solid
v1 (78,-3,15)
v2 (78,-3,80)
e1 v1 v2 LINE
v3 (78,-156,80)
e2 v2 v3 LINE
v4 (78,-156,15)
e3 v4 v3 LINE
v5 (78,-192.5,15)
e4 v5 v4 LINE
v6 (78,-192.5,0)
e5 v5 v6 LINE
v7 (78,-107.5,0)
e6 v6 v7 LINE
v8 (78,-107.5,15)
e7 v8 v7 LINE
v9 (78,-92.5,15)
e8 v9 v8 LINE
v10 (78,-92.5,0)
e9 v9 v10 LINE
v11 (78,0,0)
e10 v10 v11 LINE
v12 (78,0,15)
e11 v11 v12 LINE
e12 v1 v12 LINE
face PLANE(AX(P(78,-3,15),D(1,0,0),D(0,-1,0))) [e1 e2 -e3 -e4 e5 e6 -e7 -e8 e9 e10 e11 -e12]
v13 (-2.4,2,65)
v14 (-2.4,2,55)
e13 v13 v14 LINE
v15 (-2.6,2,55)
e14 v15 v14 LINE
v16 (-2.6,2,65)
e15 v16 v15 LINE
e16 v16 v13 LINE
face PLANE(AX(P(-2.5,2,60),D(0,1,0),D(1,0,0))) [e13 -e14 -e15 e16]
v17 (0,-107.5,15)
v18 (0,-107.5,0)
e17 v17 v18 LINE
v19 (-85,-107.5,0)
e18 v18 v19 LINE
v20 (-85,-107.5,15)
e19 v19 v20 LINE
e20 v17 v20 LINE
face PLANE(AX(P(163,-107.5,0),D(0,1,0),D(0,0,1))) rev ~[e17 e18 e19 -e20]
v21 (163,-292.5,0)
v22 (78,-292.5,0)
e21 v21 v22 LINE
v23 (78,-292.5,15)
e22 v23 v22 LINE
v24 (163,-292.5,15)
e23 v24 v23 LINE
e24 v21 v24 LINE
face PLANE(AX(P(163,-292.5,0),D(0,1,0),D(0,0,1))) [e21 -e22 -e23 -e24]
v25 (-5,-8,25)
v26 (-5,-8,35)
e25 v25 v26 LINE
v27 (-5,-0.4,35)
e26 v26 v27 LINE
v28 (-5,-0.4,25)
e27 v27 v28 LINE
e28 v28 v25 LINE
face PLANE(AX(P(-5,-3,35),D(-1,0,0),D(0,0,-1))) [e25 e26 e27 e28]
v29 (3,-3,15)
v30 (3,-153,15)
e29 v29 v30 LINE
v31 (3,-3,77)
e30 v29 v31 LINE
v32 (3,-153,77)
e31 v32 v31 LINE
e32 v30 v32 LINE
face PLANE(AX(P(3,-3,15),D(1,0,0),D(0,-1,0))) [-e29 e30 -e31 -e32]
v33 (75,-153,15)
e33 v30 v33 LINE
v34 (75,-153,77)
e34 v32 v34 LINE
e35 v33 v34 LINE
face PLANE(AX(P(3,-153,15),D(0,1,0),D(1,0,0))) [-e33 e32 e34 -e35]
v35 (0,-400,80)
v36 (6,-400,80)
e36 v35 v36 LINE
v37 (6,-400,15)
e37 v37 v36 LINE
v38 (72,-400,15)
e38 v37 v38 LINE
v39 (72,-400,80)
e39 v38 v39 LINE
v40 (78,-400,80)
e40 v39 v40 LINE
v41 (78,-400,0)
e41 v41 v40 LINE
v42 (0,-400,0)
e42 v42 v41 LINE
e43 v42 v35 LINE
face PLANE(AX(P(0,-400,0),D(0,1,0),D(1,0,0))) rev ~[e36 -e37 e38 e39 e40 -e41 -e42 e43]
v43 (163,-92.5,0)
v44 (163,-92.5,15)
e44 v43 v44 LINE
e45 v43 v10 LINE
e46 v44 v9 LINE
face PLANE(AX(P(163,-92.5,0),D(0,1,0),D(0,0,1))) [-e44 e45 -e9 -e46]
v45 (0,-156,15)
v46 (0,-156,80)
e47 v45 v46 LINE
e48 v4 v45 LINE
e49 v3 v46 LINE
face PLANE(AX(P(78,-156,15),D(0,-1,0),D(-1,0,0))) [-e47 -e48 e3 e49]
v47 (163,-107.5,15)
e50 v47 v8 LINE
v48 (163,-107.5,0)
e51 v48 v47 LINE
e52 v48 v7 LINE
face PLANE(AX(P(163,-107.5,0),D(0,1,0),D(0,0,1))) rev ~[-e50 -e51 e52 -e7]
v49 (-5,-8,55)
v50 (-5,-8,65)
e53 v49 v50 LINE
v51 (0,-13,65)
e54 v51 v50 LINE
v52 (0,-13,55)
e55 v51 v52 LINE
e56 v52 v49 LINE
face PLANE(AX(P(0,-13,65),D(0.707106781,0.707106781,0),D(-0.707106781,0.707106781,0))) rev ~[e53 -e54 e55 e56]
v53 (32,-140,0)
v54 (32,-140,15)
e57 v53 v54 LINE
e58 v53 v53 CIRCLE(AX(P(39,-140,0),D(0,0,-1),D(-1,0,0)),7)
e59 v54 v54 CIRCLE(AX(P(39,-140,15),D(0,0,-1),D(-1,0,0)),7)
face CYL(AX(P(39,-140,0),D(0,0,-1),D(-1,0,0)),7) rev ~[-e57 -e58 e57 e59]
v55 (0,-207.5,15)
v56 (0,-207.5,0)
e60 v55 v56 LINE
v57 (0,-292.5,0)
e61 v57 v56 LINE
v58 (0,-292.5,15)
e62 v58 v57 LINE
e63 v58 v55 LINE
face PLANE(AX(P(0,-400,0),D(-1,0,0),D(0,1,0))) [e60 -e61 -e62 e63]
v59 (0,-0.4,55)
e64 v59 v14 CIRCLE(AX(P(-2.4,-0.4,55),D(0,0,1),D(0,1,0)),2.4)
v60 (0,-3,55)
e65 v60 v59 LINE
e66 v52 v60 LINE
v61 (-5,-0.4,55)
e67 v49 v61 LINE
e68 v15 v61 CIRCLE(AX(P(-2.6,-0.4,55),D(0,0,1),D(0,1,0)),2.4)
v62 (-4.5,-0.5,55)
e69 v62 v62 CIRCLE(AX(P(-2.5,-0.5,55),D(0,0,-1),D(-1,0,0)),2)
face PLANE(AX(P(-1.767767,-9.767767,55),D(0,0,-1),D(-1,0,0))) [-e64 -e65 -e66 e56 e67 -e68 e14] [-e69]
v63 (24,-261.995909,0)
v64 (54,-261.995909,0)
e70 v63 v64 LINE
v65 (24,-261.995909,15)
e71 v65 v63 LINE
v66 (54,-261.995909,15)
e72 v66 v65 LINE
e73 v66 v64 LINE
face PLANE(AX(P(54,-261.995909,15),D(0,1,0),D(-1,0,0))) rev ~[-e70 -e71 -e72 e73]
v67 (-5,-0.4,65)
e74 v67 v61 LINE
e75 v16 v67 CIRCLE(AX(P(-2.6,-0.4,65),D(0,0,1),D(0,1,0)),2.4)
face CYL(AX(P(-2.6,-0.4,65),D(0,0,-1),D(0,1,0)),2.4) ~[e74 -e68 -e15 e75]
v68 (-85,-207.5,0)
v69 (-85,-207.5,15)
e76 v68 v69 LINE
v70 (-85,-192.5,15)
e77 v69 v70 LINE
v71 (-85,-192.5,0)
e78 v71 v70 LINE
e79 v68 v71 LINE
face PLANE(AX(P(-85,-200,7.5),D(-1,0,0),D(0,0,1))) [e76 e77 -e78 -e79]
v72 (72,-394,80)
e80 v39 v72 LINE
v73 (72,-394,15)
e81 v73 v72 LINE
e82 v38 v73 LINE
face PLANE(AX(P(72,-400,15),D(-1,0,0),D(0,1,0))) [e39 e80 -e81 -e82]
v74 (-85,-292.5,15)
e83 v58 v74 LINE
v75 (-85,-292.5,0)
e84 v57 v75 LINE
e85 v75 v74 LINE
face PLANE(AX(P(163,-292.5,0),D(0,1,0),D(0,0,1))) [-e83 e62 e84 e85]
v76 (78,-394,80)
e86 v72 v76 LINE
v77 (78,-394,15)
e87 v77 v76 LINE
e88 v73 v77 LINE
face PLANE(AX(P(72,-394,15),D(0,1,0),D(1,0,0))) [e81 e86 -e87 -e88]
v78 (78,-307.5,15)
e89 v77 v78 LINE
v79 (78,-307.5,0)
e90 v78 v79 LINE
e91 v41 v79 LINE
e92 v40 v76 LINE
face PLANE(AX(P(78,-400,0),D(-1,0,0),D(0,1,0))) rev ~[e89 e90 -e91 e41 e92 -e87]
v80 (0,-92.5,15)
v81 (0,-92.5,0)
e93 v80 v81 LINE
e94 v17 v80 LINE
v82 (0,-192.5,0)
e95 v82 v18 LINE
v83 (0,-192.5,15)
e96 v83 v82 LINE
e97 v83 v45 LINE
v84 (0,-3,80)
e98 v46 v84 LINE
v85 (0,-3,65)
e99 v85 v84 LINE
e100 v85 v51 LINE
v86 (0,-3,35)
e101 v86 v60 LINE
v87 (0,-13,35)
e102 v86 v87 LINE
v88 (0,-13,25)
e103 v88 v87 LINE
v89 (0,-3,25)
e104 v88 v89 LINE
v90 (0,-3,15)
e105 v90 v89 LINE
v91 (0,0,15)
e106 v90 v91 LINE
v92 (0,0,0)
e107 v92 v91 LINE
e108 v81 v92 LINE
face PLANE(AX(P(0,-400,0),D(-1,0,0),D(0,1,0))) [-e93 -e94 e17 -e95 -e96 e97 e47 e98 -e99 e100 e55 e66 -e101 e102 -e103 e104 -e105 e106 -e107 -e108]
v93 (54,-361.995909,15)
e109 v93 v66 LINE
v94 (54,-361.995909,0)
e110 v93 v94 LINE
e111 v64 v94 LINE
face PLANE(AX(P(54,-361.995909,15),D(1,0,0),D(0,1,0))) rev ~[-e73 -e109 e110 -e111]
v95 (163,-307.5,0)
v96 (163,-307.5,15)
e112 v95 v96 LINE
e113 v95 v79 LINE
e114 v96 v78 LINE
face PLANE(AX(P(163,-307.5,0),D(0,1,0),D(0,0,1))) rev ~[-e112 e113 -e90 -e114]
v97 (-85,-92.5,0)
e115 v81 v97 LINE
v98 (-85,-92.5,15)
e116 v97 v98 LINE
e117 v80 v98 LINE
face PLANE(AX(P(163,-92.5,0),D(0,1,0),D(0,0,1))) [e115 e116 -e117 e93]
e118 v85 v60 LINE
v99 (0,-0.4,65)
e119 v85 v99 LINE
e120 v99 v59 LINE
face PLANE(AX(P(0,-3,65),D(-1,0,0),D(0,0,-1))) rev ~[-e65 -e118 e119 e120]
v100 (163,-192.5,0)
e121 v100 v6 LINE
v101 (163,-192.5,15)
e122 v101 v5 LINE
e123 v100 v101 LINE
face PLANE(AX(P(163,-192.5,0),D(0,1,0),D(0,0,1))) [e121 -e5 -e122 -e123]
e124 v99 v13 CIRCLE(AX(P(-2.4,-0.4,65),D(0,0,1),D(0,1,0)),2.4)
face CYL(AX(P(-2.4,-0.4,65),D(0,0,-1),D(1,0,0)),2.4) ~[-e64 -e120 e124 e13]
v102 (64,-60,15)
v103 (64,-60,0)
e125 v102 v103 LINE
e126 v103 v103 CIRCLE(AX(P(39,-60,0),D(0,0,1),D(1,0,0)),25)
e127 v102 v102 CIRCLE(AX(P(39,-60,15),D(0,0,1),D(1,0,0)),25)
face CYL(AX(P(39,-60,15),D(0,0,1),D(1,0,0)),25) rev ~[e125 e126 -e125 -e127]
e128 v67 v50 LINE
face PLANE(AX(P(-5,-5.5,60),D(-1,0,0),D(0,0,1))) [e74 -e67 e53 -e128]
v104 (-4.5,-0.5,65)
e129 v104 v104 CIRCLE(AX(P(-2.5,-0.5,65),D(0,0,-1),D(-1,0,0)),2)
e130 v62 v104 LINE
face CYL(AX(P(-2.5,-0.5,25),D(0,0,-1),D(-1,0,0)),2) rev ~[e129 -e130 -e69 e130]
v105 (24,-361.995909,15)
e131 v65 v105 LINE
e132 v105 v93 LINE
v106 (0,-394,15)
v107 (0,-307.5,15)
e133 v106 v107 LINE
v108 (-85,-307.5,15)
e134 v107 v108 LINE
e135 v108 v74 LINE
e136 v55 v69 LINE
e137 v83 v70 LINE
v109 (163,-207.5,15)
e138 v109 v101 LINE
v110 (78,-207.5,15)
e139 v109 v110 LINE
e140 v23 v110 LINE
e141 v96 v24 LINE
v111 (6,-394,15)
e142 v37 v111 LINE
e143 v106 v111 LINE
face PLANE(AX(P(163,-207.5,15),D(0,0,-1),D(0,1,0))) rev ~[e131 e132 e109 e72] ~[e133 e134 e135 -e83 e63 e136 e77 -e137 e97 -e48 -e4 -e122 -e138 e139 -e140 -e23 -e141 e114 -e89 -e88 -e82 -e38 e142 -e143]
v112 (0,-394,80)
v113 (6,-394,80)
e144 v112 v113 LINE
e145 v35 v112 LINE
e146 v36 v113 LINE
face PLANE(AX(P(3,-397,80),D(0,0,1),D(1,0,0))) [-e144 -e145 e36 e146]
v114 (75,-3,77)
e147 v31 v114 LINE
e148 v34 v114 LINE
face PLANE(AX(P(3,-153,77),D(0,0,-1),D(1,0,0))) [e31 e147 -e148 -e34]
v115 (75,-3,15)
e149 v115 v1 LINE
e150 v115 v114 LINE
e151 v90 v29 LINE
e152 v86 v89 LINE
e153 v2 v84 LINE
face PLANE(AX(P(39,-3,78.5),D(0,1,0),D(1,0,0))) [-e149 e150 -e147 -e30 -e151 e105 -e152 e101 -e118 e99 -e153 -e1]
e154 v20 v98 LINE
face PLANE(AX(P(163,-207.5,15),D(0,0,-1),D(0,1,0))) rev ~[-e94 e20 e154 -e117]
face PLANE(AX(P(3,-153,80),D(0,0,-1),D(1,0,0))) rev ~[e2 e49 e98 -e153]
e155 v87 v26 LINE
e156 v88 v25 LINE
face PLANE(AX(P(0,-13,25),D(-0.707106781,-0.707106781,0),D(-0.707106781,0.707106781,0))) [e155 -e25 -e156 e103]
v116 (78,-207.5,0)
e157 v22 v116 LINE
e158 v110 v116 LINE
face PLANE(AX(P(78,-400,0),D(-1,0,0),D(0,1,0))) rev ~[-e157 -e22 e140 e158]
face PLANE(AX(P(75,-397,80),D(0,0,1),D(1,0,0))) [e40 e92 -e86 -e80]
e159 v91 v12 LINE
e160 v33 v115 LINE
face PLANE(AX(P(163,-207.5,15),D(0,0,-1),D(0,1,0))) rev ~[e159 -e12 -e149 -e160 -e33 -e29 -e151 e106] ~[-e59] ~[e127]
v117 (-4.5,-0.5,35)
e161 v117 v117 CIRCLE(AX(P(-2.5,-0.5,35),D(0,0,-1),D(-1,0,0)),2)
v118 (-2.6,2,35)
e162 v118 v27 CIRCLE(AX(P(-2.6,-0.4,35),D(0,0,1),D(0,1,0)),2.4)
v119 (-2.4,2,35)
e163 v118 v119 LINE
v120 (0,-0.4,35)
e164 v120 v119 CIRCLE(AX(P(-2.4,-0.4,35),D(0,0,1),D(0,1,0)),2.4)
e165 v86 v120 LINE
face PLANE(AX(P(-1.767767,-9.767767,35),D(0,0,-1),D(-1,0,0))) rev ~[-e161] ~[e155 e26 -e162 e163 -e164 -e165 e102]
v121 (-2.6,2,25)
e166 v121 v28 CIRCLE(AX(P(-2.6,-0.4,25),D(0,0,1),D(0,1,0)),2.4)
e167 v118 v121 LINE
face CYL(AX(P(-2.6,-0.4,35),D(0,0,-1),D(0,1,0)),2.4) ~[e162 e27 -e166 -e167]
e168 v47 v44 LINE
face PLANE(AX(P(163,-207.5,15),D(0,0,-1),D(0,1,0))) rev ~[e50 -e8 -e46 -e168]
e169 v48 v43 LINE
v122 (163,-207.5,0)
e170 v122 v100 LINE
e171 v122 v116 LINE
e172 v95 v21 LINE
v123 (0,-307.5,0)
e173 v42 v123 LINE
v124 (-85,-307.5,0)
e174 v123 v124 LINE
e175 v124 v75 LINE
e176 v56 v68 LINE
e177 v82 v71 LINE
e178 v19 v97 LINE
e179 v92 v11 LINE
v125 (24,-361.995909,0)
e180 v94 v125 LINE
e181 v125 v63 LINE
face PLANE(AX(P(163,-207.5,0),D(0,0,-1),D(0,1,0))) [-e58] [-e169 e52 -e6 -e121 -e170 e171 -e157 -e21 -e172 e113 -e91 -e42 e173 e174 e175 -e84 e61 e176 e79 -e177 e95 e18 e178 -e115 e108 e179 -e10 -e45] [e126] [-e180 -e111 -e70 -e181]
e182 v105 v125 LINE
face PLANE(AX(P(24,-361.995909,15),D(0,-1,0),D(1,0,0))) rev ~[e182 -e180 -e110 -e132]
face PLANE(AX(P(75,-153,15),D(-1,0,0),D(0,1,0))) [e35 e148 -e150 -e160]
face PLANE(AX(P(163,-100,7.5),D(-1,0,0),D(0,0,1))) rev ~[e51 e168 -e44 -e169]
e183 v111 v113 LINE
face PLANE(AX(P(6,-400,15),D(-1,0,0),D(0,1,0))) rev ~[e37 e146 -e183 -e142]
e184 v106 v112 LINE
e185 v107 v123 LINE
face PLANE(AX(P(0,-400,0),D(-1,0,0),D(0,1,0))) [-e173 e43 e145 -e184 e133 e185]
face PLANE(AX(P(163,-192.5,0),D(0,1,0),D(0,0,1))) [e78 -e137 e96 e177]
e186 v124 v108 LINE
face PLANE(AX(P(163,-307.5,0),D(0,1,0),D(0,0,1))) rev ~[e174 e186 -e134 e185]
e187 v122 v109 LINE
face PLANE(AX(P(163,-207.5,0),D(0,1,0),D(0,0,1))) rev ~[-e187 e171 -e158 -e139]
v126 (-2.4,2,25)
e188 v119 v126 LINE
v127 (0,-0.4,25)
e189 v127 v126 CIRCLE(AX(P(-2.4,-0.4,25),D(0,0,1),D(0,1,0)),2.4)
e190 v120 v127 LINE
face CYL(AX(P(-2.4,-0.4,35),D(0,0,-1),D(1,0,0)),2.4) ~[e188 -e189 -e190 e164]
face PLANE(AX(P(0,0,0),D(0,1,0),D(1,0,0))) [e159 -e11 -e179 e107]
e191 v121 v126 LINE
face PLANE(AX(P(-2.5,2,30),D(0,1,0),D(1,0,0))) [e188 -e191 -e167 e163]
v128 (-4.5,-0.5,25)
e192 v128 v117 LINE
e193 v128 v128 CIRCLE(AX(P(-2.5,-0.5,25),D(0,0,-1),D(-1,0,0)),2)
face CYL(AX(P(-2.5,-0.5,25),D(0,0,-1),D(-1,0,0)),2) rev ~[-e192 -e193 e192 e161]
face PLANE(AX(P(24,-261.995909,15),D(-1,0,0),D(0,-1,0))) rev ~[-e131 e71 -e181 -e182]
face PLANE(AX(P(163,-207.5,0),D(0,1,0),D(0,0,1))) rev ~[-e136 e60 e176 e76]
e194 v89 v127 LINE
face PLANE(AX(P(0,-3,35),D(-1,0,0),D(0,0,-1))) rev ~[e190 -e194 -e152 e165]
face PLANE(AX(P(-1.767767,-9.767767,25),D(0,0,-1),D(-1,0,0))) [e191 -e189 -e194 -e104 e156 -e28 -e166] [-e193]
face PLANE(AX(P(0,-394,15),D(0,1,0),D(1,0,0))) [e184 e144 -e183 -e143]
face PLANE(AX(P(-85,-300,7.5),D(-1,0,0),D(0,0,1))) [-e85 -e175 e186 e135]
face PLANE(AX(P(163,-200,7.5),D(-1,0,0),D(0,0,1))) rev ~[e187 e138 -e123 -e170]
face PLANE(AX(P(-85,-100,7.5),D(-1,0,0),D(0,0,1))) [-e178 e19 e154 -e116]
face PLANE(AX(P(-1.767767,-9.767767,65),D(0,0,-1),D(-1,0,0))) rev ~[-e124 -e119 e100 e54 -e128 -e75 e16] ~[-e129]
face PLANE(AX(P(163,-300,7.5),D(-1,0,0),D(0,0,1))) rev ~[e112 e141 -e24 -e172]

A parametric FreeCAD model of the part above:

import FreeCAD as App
import Part
import Sketcher
from FreeCAD import Vector


def edges_at(feature, points):
    """Names of the edges that pass closest to the given points."""
    edges = feature.Shape.Edges
    near = lambda p: min(range(len(edges)), key=lambda i: edges[i].distToShape(Part.Vertex(*p))[0])
    return sorted({f"Edge{near(p) + 1}" for p in points})

doc = App.newDocument("Part")
body = doc.addObject("PartDesign::Body", "Body")

# Sketch on XY plane
sketch1 = body.newObject("Sketcher::SketchObject", "Sketch")
sketch1.AttachmentSupport = (doc.getObject("XY_Plane"), [""])
sketch1.MapMode = "FlatFace"
sketch1.addGeometry(Part.LineSegment(Vector(0, 0, 0), Vector(0, -400, 0)), False)
sketch1.addGeometry(Part.LineSegment(Vector(0, -400, 0), Vector(78, -400, 0)), False)
sketch1.addGeometry(Part.LineSegment(Vector(78, -400, 0), Vector(78, 0, 0)), False)
sketch1.addGeometry(Part.LineSegment(Vector(78, 0, 0), Vector(0, 0, 0)), False)
sketch1.addConstraint(Sketcher.Constraint("Coincident", 0, 2, 1, 1))
sketch1.addConstraint(Sketcher.Constraint("Coincident", 1, 2, 2, 1))
sketch1.addConstraint(Sketcher.Constraint("Coincident", 2, 2, 3, 1))
sketch1.addConstraint(Sketcher.Constraint("Coincident", 3, 2, 0, 1))
sketch1.addConstraint(Sketcher.Constraint("Vertical", 0))
sketch1.addConstraint(Sketcher.Constraint("Horizontal", 1))
sketch1.addConstraint(Sketcher.Constraint("Vertical", 2))
sketch1.addConstraint(Sketcher.Constraint("Horizontal", 3))
sketch1.addConstraint(Sketcher.Constraint("Coincident", 3, 2, -1, 1))
sketch1.addConstraint(Sketcher.Constraint("DistanceX", 1, 1, 1, 2, 78.0))
sketch1.addConstraint(Sketcher.Constraint("DistanceY", 0, 2, 0, 1, 400.0))
pad1 = body.newObject("PartDesign::Pad", "Pad")
pad1.Profile = sketch1
pad1.Length = 15

# Sketch on XY plane
sketch2 = body.newObject("Sketcher::SketchObject", "Sketch001")
sketch2.AttachmentSupport = (doc.getObject("XY_Plane"), [""])
sketch2.MapMode = "FlatFace"
sketch2.AttachmentOffset = App.Placement(Vector(0, 0, 15), App.Rotation())
sketch2.addGeometry(Part.Circle(Vector(39, -60, 0), Vector(0, 0, 1), 25), False)
sketch2.addConstraint(Sketcher.Constraint("Diameter", 0, 50.0))
sketch2.addConstraint(Sketcher.Constraint("DistanceX", -1, 1, 0, 3, 39.0))
sketch2.addConstraint(Sketcher.Constraint("DistanceY", 0, 3, -1, 1, 60.0))
pocket1 = body.newObject("PartDesign::Pocket", "Pocket")
pocket1.Profile = sketch2
pocket1.Length = 30

# Sketch on YZ plane
sketch3 = body.newObject("Sketcher::SketchObject", "Sketch002")
sketch3.AttachmentSupport = (doc.getObject("YZ_Plane"), [""])
sketch3.MapMode = "FlatFace"
sketch3.addGeometry(Part.LineSegment(Vector(-192, 0, 0), Vector(-208, 0, 0)), False)
sketch3.addGeometry(Part.LineSegment(Vector(-208, 0, 0), Vector(-208, 15, 0)), False)
sketch3.addGeometry(Part.LineSegment(Vector(-208, 15, 0), Vector(-192, 15, 0)), False)
sketch3.addGeometry(Part.LineSegment(Vector(-192, 15, 0), Vector(-192, 0, 0)), False)
sketch3.addGeometry(Part.LineSegment(Vector(-92, 0, 0), Vector(-108, 0, 0)), False)
sketch3.addGeometry(Part.LineSegment(Vector(-108, 0, 0), Vector(-108, 15, 0)), False)
sketch3.addGeometry(Part.LineSegment(Vector(-108, 15, 0), Vector(-92, 15, 0)), False)
sketch3.addGeometry(Part.LineSegment(Vector(-92, 15, 0), Vector(-92, 0, 0)), False)
sketch3.addGeometry(Part.LineSegment(Vector(-292, 0, 0), Vector(-308, 0, 0)), False)
sketch3.addGeometry(Part.LineSegment(Vector(-308, 0, 0), Vector(-308, 15, 0)), False)
sketch3.addGeometry(Part.LineSegment(Vector(-308, 15, 0), Vector(-292, 15, 0)), False)
sketch3.addGeometry(Part.LineSegment(Vector(-292, 15, 0), Vector(-292, 0, 0)), False)
sketch3.addConstraint(Sketcher.Constraint("Coincident", 0, 2, 1, 1))
sketch3.addConstraint(Sketcher.Constraint("Coincident", 1, 2, 2, 1))
sketch3.addConstraint(Sketcher.Constraint("Coincident", 2, 2, 3, 1))
sketch3.addConstraint(Sketcher.Constraint("Coincident", 3, 2, 0, 1))
sketch3.addConstraint(Sketcher.Constraint("Coincident", 4, 2, 5, 1))
sketch3.addConstraint(Sketcher.Constraint("Coincident", 5, 2, 6, 1))
sketch3.addConstraint(Sketcher.Constraint("Coincident", 6, 2, 7, 1))
sketch3.addConstraint(Sketcher.Constraint("Coincident", 7, 2, 4, 1))
sketch3.addConstraint(Sketcher.Constraint("Coincident", 8, 2, 9, 1))
sketch3.addConstraint(Sketcher.Constraint("Coincident", 9, 2, 10, 1))
sketch3.addConstraint(Sketcher.Constraint("Coincident", 10, 2, 11, 1))
sketch3.addConstraint(Sketcher.Constraint("Coincident", 11, 2, 8, 1))
sketch3.addConstraint(Sketcher.Constraint("Horizontal", 0))
sketch3.addConstraint(Sketcher.Constraint("Vertical", 1))
sketch3.addConstraint(Sketcher.Constraint("Horizontal", 2))
sketch3.addConstraint(Sketcher.Constraint("Vertical", 3))
sketch3.addConstraint(Sketcher.Constraint("Horizontal", 4))
sketch3.addConstraint(Sketcher.Constraint("Vertical", 5))
sketch3.addConstraint(Sketcher.Constraint("Horizontal", 6))
sketch3.addConstraint(Sketcher.Constraint("Vertical", 7))
sketch3.addConstraint(Sketcher.Constraint("Horizontal", 8))
sketch3.addConstraint(Sketcher.Constraint("Vertical", 9))
sketch3.addConstraint(Sketcher.Constraint("Horizontal", 10))
sketch3.addConstraint(Sketcher.Constraint("Vertical", 11))
sketch3.addConstraint(Sketcher.Constraint("PointOnObject", 0, 2, -1))
sketch3.addConstraint(Sketcher.Constraint("PointOnObject", 4, 2, -1))
sketch3.addConstraint(Sketcher.Constraint("PointOnObject", 8, 2, -1))
sketch3.addConstraint(Sketcher.Constraint("Horizontal", 2, 2, 5, 2))
sketch3.addConstraint(Sketcher.Constraint("Horizontal", 6, 2, 9, 2))
sketch3.addConstraint(Sketcher.Constraint("Equal", 2, 4))
sketch3.addConstraint(Sketcher.Constraint("Equal", 6, 8))
sketch3.addConstraint(Sketcher.Constraint("Equal", 10, 1))
sketch3.addConstraint(Sketcher.Constraint("DistanceX", 0, 2, 0, 1, 15.0))
sketch3.addConstraint(Sketcher.Constraint("DistanceX", 3, 2, 4, 2, 85.0))
sketch3.addConstraint(Sketcher.Constraint("DistanceX", 8, 2, 0, 2, 100.0))
sketch3.addConstraint(Sketcher.Constraint("DistanceX", 0, 2, -1, 1, 207.5))
pad2 = body.newObject("PartDesign::Pad", "Pad001")
pad2.Profile = sketch3
pad2.Type = "TwoLengths"
pad2.Length = 85
pad2.Length2 = 163
pad2.Reversed = True

# Sketch on XY plane
sketch4 = body.newObject("Sketcher::SketchObject", "Sketch003")
sketch4.AttachmentSupport = (doc.getObject("XY_Plane"), [""])
sketch4.MapMode = "FlatFace"
sketch4.AttachmentOffset = App.Placement(Vector(0, 0, 15), App.Rotation())
sketch4.addGeometry(Part.LineSegment(Vector(24, -262, 0), Vector(24, -362, 0)), False)
sketch4.addGeometry(Part.LineSegment(Vector(24, -362, 0), Vector(54, -362, 0)), False)
sketch4.addGeometry(Part.LineSegment(Vector(54, -362, 0), Vector(54, -262, 0)), False)
sketch4.addGeometry(Part.LineSegment(Vector(54, -262, 0), Vector(24, -262, 0)), False)
sketch4.addConstraint(Sketcher.Constraint("Coincident", 0, 2, 1, 1))
sketch4.addConstraint(Sketcher.Constraint("Coincident", 1, 2, 2, 1))
sketch4.addConstraint(Sketcher.Constraint("Coincident", 2, 2, 3, 1))
sketch4.addConstraint(Sketcher.Constraint("Coincident", 3, 2, 0, 1))
sketch4.addConstraint(Sketcher.Constraint("Vertical", 0))
sketch4.addConstraint(Sketcher.Constraint("Horizontal", 1))
sketch4.addConstraint(Sketcher.Constraint("Vertical", 2))
sketch4.addConstraint(Sketcher.Constraint("Horizontal", 3))
sketch4.addConstraint(Sketcher.Constraint("DistanceX", 1, 1, 1, 2, 30.0))
sketch4.addConstraint(Sketcher.Constraint("DistanceY", 0, 2, 0, 1, 100.0))
sketch4.addConstraint(Sketcher.Constraint("DistanceX", -1, 1, 0, 2, 24.0))
sketch4.addConstraint(Sketcher.Constraint("DistanceY", 0, 2, -1, 1, 361.995909))
pocket2 = body.newObject("PartDesign::Pocket", "Pocket001")
pocket2.Profile = sketch4
pocket2.Length = 26

# Sketch on XY plane
sketch5 = body.newObject("Sketcher::SketchObject", "Sketch004")
sketch5.AttachmentSupport = (doc.getObject("XY_Plane"), [""])
sketch5.MapMode = "FlatFace"
sketch5.AttachmentOffset = App.Placement(Vector(0, 0, 15), App.Rotation())
sketch5.addGeometry(Part.LineSegment(Vector(78, -3, 0), Vector(75, -3, 0)), False)
sketch5.addGeometry(Part.LineSegment(Vector(75, -3, 0), Vector(75, -153, 0)), False)
sketch5.addGeometry(Part.LineSegment(Vector(75, -153, 0), Vector(3, -153, 0)), False)
sketch5.addGeometry(Part.LineSegment(Vector(3, -153, 0), Vector(3, -3, 0)), False)
sketch5.addGeometry(Part.LineSegment(Vector(3, -3, 0), Vector(0, -3, 0)), False)
sketch5.addGeometry(Part.LineSegment(Vector(0, -3, 0), Vector(0, -156, 0)), False)
sketch5.addGeometry(Part.LineSegment(Vector(0, -156, 0), Vector(78, -156, 0)), False)
sketch5.addGeometry(Part.LineSegment(Vector(78, -156, 0), Vector(78, -3, 0)), False)
sketch5.addGeometry(Part.LineSegment(Vector(0, -394, 0), Vector(0, -400, 0)), False)
sketch5.addGeometry(Part.LineSegment(Vector(0, -400, 0), Vector(6, -400, 0)), False)
sketch5.addGeometry(Part.LineSegment(Vector(6, -400, 0), Vector(6, -394, 0)), False)
sketch5.addGeometry(Part.LineSegment(Vector(6, -394, 0), Vector(0, -394, 0)), False)
sketch5.addGeometry(Part.LineSegment(Vector(72, -394, 0), Vector(72, -400, 0)), False)
sketch5.addGeometry(Part.LineSegment(Vector(72, -400, 0), Vector(78, -400, 0)), False)
sketch5.addGeometry(Part.LineSegment(Vector(78, -400, 0), Vector(78, -394, 0)), False)
sketch5.addGeometry(Part.LineSegment(Vector(78, -394, 0), Vector(72, -394, 0)), False)
sketch5.addConstraint(Sketcher.Constraint("Coincident", 0, 2, 1, 1))
sketch5.addConstraint(Sketcher.Constraint("Coincident", 1, 2, 2, 1))
sketch5.addConstraint(Sketcher.Constraint("Coincident", 2, 2, 3, 1))
sketch5.addConstraint(Sketcher.Constraint("Coincident", 3, 2, 4, 1))
sketch5.addConstraint(Sketcher.Constraint("Coincident", 4, 2, 5, 1))
sketch5.addConstraint(Sketcher.Constraint("Coincident", 5, 2, 6, 1))
sketch5.addConstraint(Sketcher.Constraint("Coincident", 6, 2, 7, 1))
sketch5.addConstraint(Sketcher.Constraint("Coincident", 7, 2, 0, 1))
sketch5.addConstraint(Sketcher.Constraint("Coincident", 8, 2, 9, 1))
sketch5.addConstraint(Sketcher.Constraint("Coincident", 9, 2, 10, 1))
sketch5.addConstraint(Sketcher.Constraint("Coincident", 10, 2, 11, 1))
sketch5.addConstraint(Sketcher.Constraint("Coincident", 11, 2, 8, 1))
sketch5.addConstraint(Sketcher.Constraint("Coincident", 12, 2, 13, 1))
sketch5.addConstraint(Sketcher.Constraint("Coincident", 13, 2, 14, 1))
sketch5.addConstraint(Sketcher.Constraint("Coincident", 14, 2, 15, 1))
sketch5.addConstraint(Sketcher.Constraint("Coincident", 15, 2, 12, 1))
sketch5.addConstraint(Sketcher.Constraint("Horizontal", 0))
sketch5.addConstraint(Sketcher.Constraint("Vertical", 1))
sketch5.addConstraint(Sketcher.Constraint("Horizontal", 2))
sketch5.addConstraint(Sketcher.Constraint("Vertical", 3))
sketch5.addConstraint(Sketcher.Constraint("Horizontal", 4))
sketch5.addConstraint(Sketcher.Constraint("Vertical", 5))
sketch5.addConstraint(Sketcher.Constraint("Horizontal", 6))
sketch5.addConstraint(Sketcher.Constraint("Vertical", 7))
sketch5.addConstraint(Sketcher.Constraint("Vertical", 8))
sketch5.addConstraint(Sketcher.Constraint("Horizontal", 9))
sketch5.addConstraint(Sketcher.Constraint("Vertical", 10))
sketch5.addConstraint(Sketcher.Constraint("Horizontal", 11))
sketch5.addConstraint(Sketcher.Constraint("Vertical", 12))
sketch5.addConstraint(Sketcher.Constraint("Horizontal", 13))
sketch5.addConstraint(Sketcher.Constraint("Vertical", 14))
sketch5.addConstraint(Sketcher.Constraint("Horizontal", 15))
sketch5.addConstraint(Sketcher.Constraint("PointOnObject", 4, 2, -2))
sketch5.addConstraint(Sketcher.Constraint("PointOnObject", 8, 2, -2))
sketch5.addConstraint(Sketcher.Constraint("Horizontal", 0, 2, 3, 2))
sketch5.addConstraint(Sketcher.Constraint("Horizontal", 9, 2, 12, 2))
sketch5.addConstraint(Sketcher.Constraint("Horizontal", 11, 2, 14, 2))
sketch5.addConstraint(Sketcher.Constraint("Vertical", 7, 2, 13, 2))
sketch5.addConstraint(Sketcher.Constraint("Equal", 0, 4))
sketch5.addConstraint(Sketcher.Constraint("Equal", 11, 13))
sketch5.addConstraint(Sketcher.Constraint("Equal", 15, 8))
sketch5.addConstraint(Sketcher.Constraint("DistanceX", 0, 2, 0, 1, 3.0))
sketch5.addConstraint(Sketcher.Constraint("DistanceX", 2, 2, 2, 1, 72.0))
sketch5.addConstraint(Sketcher.Constraint("DistanceX", 9, 1, 9, 2, 6.0))
sketch5.addConstraint(Sketcher.Constraint("DistanceY", 1, 2, 1, 1, 150.0))
sketch5.addConstraint(Sketcher.Constraint("DistanceY", 5, 2, 5, 1, 153.0))
sketch5.addConstraint(Sketcher.Constraint("DistanceY", 0, 2, -1, 1, 3.0))
sketch5.addConstraint(Sketcher.Constraint("DistanceY", 8, 2, -1, 1, 400.0))
pad3 = body.newObject("PartDesign::Pad", "Pad002")
pad3.Profile = sketch5
pad3.Length = 65

# Sketch on XY plane
sketch6 = body.newObject("Sketcher::SketchObject", "Sketch005")
sketch6.AttachmentSupport = (doc.getObject("XY_Plane"), [""])
sketch6.MapMode = "FlatFace"
sketch6.addGeometry(Part.Circle(Vector(39, -140, 0), Vector(0, 0, 1), 7), False)
sketch6.addConstraint(Sketcher.Constraint("Diameter", 0, 14.0))
sketch6.addConstraint(Sketcher.Constraint("DistanceX", -1, 1, 0, 3, 39.0))
sketch6.addConstraint(Sketcher.Constraint("DistanceY", 0, 3, -1, 1, 140.0))
pocket3 = body.newObject("PartDesign::Pocket", "Pocket002")
pocket3.Profile = sketch6
pocket3.Length = 65
pocket3.Reversed = True

# Sketch on XZ plane
sketch7 = body.newObject("Sketcher::SketchObject", "Sketch006")
sketch7.AttachmentSupport = (doc.getObject("XZ_Plane"), [""])
sketch7.MapMode = "FlatFace"
sketch7.AttachmentOffset = App.Placement(Vector(0, 0, 153), App.Rotation())
sketch7.addGeometry(Part.LineSegment(Vector(3, 77, 0), Vector(3, 80, 0)), False)
sketch7.addGeometry(Part.LineSegment(Vector(3, 80, 0), Vector(75, 80, 0)), False)
sketch7.addGeometry(Part.LineSegment(Vector(75, 80, 0), Vector(75, 77, 0)), False)
sketch7.addGeometry(Part.LineSegment(Vector(75, 77, 0), Vector(3, 77, 0)), False)
sketch7.addConstraint(Sketcher.Constraint("Coincident", 0, 2, 1, 1))
sketch7.addConstraint(Sketcher.Constraint("Coincident", 1, 2, 2, 1))
sketch7.addConstraint(Sketcher.Constraint("Coincident", 2, 2, 3, 1))
sketch7.addConstraint(Sketcher.Constraint("Coincident", 3, 2, 0, 1))
sketch7.addConstraint(Sketcher.Constraint("Vertical", 0))
sketch7.addConstraint(Sketcher.Constraint("Horizontal", 1))
sketch7.addConstraint(Sketcher.Constraint("Vertical", 2))
sketch7.addConstraint(Sketcher.Constraint("Horizontal", 3))
sketch7.addConstraint(Sketcher.Constraint("DistanceX", 1, 1, 1, 2, 72.0))
sketch7.addConstraint(Sketcher.Constraint("DistanceY", 0, 1, 0, 2, 3.0))
sketch7.addConstraint(Sketcher.Constraint("DistanceX", -1, 1, 0, 2, 3.0))
sketch7.addConstraint(Sketcher.Constraint("DistanceY", -1, 1, 0, 2, 80.0))
pad4 = body.newObject("PartDesign::Pad", "Pad003")
pad4.Profile = sketch7
pad4.Length = 150
pad4.Reversed = True

# Sketch on YZ plane
sketch8 = body.newObject("Sketcher::SketchObject", "Sketch007")
sketch8.AttachmentSupport = (doc.getObject("YZ_Plane"), [""])
sketch8.MapMode = "FlatFace"
sketch8.addGeometry(Part.LineSegment(Vector(-3, 55, 0), Vector(-8, 55, 0)), False)
sketch8.addGeometry(Part.LineSegment(Vector(-8, 55, 0), Vector(-8, 65, 0)), False)
sketch8.addGeometry(Part.LineSegment(Vector(-8, 65, 0), Vector(-3, 65, 0)), False)
sketch8.addGeometry(Part.LineSegment(Vector(-3, 65, 0), Vector(-3, 55, 0)), False)
sketch8.addGeometry(Part.LineSegment(Vector(-3, 25, 0), Vector(-8, 25, 0)), False)
sketch8.addGeometry(Part.LineSegment(Vector(-8, 25, 0), Vector(-8, 35, 0)), False)
sketch8.addGeometry(Part.LineSegment(Vector(-8, 35, 0), Vector(-3, 35, 0)), False)
sketch8.addGeometry(Part.LineSegment(Vector(-3, 35, 0), Vector(-3, 25, 0)), False)
sketch8.addConstraint(Sketcher.Constraint("Coincident", 0, 2, 1, 1))
sketch8.addConstraint(Sketcher.Constraint("Coincident", 1, 2, 2, 1))
sketch8.addConstraint(Sketcher.Constraint("Coincident", 2, 2, 3, 1))
sketch8.addConstraint(Sketcher.Constraint("Coincident", 3, 2, 0, 1))
sketch8.addConstraint(Sketcher.Constraint("Coincident", 4, 2, 5, 1))
sketch8.addConstraint(Sketcher.Constraint("Coincident", 5, 2, 6, 1))
sketch8.addConstraint(Sketcher.Constraint("Coincident", 6, 2, 7, 1))
sketch8.addConstraint(Sketcher.Constraint("Coincident", 7, 2, 4, 1))
sketch8.addConstraint(Sketcher.Constraint("Horizontal", 0))
sketch8.addConstraint(Sketcher.Constraint("Vertical", 1))
sketch8.addConstraint(Sketcher.Constraint("Horizontal", 2))
sketch8.addConstraint(Sketcher.Constraint("Vertical", 3))
sketch8.addConstraint(Sketcher.Constraint("Horizontal", 4))
sketch8.addConstraint(Sketcher.Constraint("Vertical", 5))
sketch8.addConstraint(Sketcher.Constraint("Horizontal", 6))
sketch8.addConstraint(Sketcher.Constraint("Vertical", 7))
sketch8.addConstraint(Sketcher.Constraint("Vertical", 1, 2, 4, 2))
sketch8.addConstraint(Sketcher.Constraint("Vertical", 3, 2, 6, 2))
sketch8.addConstraint(Sketcher.Constraint("Equal", 3, 5))
sketch8.addConstraint(Sketcher.Constraint("DistanceX", 0, 2, 0, 1, 5.0))
sketch8.addConstraint(Sketcher.Constraint("DistanceY", 1, 1, 1, 2, 10.0))
sketch8.addConstraint(Sketcher.Constraint("DistanceX", 0, 2, -1, 1, 8.0))
sketch8.addConstraint(Sketcher.Constraint("DistanceY", -1, 1, 0, 2, 55.0))
sketch8.addConstraint(Sketcher.Constraint("DistanceY", -1, 1, 4, 2, 25.0))
pad5 = body.newObject("PartDesign::Pad", "Pad004")
pad5.Profile = sketch8
pad5.Length = 5
pad5.Reversed = True

# Sketch on XZ plane
sketch9 = body.newObject("Sketcher::SketchObject", "Sketch008")
sketch9.AttachmentSupport = (doc.getObject("XZ_Plane"), [""])
sketch9.MapMode = "FlatFace"
sketch9.AttachmentOffset = App.Placement(Vector(0, 0, 3), App.Rotation())
sketch9.addGeometry(Part.LineSegment(Vector(-5, 25, 0), Vector(-5, 35, 0)), False)
sketch9.addGeometry(Part.LineSegment(Vector(-5, 35, 0), Vector(0, 35, 0)), False)
sketch9.addGeometry(Part.LineSegment(Vector(0, 35, 0), Vector(0, 25, 0)), False)
sketch9.addGeometry(Part.LineSegment(Vector(0, 25, 0), Vector(-5, 25, 0)), False)
sketch9.addGeometry(Part.LineSegment(Vector(-5, 55, 0), Vector(-5, 65, 0)), False)
sketch9.addGeometry(Part.LineSegment(Vector(-5, 65, 0), Vector(0, 65, 0)), False)
sketch9.addGeometry(Part.LineSegment(Vector(0, 65, 0), Vector(0, 55, 0)), False)
sketch9.addGeometry(Part.LineSegment(Vector(0, 55, 0), Vector(-5, 55, 0)), False)
sketch9.addConstraint(Sketcher.Constraint("Coincident", 0, 2, 1, 1))
sketch9.addConstraint(Sketcher.Constraint("Coincident", 1, 2, 2, 1))
sketch9.addConstraint(Sketcher.Constraint("Coincident", 2, 2, 3, 1))
sketch9.addConstraint(Sketcher.Constraint("Coincident", 3, 2, 0, 1))
sketch9.addConstraint(Sketcher.Constraint("Coincident", 4, 2, 5, 1))
sketch9.addConstraint(Sketcher.Constraint("Coincident", 5, 2, 6, 1))
sketch9.addConstraint(Sketcher.Constraint("Coincident", 6, 2, 7, 1))
sketch9.addConstraint(Sketcher.Constraint("Coincident", 7, 2, 4, 1))
sketch9.addConstraint(Sketcher.Constraint("Vertical", 0))
sketch9.addConstraint(Sketcher.Constraint("Horizontal", 1))
sketch9.addConstraint(Sketcher.Constraint("Vertical", 2))
sketch9.addConstraint(Sketcher.Constraint("Horizontal", 3))
sketch9.addConstraint(Sketcher.Constraint("Vertical", 4))
sketch9.addConstraint(Sketcher.Constraint("Horizontal", 5))
sketch9.addConstraint(Sketcher.Constraint("Vertical", 6))
sketch9.addConstraint(Sketcher.Constraint("Horizontal", 7))
sketch9.addConstraint(Sketcher.Constraint("PointOnObject", 1, 2, -2))
sketch9.addConstraint(Sketcher.Constraint("PointOnObject", 5, 2, -2))
sketch9.addConstraint(Sketcher.Constraint("Vertical", 3, 2, 4, 2))
sketch9.addConstraint(Sketcher.Constraint("Equal", 2, 4))
sketch9.addConstraint(Sketcher.Constraint("DistanceX", 1, 1, 1, 2, 5.0))
sketch9.addConstraint(Sketcher.Constraint("DistanceY", 0, 1, 0, 2, 10.0))
sketch9.addConstraint(Sketcher.Constraint("DistanceY", -1, 1, 0, 2, 35.0))
sketch9.addConstraint(Sketcher.Constraint("DistanceY", -1, 1, 4, 2, 65.0))
pad6 = body.newObject("PartDesign::Pad", "Pad005")
pad6.Profile = sketch9
pad6.Length = 5
pad6.Reversed = True

# Sketch on XY plane
sketch10 = body.newObject("Sketcher::SketchObject", "Sketch009")
sketch10.AttachmentSupport = (doc.getObject("XY_Plane"), [""])
sketch10.MapMode = "FlatFace"
sketch10.AttachmentOffset = App.Placement(Vector(0, 0, 65), App.Rotation())
sketch10.addGeometry(Part.LineSegment(Vector(0, -8, 0), Vector(-5, -8, 0)), False)
sketch10.addGeometry(Part.LineSegment(Vector(-5, -8, 0), Vector(0, -13, 0)), False)
sketch10.addGeometry(Part.LineSegment(Vector(0, -13, 0), Vector(0, -8, 0)), False)
sketch10.addConstraint(Sketcher.Constraint("Coincident", 0, 2, 1, 1))
sketch10.addConstraint(Sketcher.Constraint("Coincident", 1, 2, 2, 1))
sketch10.addConstraint(Sketcher.Constraint("Coincident", 2, 2, 0, 1))
sketch10.addConstraint(Sketcher.Constraint("Horizontal", 0))
sketch10.addConstraint(Sketcher.Constraint("Vertical", 2))
sketch10.addConstraint(Sketcher.Constraint("PointOnObject", 1, 2, -2))
sketch10.addConstraint(Sketcher.Constraint("Equal", 0, 2))
sketch10.addConstraint(Sketcher.Constraint("DistanceX", 0, 2, 0, 1, 5.0))
sketch10.addConstraint(Sketcher.Constraint("DistanceY", 0, 2, -1, 1, 8.0))
pad7 = body.newObject("PartDesign::Pad", "Pad006")
pad7.Profile = sketch10
pad7.Length = 10
pad7.Reversed = True

# Sketch on XY plane
sketch11 = body.newObject("Sketcher::SketchObject", "Sketch010")
sketch11.AttachmentSupport = (doc.getObject("XY_Plane"), [""])
sketch11.MapMode = "FlatFace"
sketch11.AttachmentOffset = App.Placement(Vector(0, 0, 25), App.Rotation())
sketch11.addGeometry(Part.LineSegment(Vector(0, -8, 0), Vector(0, -13, 0)), False)
sketch11.addGeometry(Part.LineSegment(Vector(0, -13, 0), Vector(-5, -8, 0)), False)
sketch11.addGeometry(Part.LineSegment(Vector(-5, -8, 0), Vector(0, -8, 0)), False)
sketch11.addConstraint(Sketcher.Constraint("Coincident", 0, 2, 1, 1))
sketch11.addConstraint(Sketcher.Constraint("Coincident", 1, 2, 2, 1))
sketch11.addConstraint(Sketcher.Constraint("Coincident", 2, 2, 0, 1))
sketch11.addConstraint(Sketcher.Constraint("Vertical", 0))
sketch11.addConstraint(Sketcher.Constraint("Horizontal", 2))
sketch11.addConstraint(Sketcher.Constraint("PointOnObject", 0, 2, -2))
sketch11.addConstraint(Sketcher.Constraint("Equal", 2, 0))
sketch11.addConstraint(Sketcher.Constraint("DistanceX", 2, 1, 2, 2, 5.0))
sketch11.addConstraint(Sketcher.Constraint("DistanceY", 0, 2, -1, 1, 13.0))
pad8 = body.newObject("PartDesign::Pad", "Pad007")
pad8.Profile = sketch11
pad8.Length = 10

# Sketch on XY plane
sketch12 = body.newObject("Sketcher::SketchObject", "Sketch011")
sketch12.AttachmentSupport = (doc.getObject("XY_Plane"), [""])
sketch12.MapMode = "FlatFace"
sketch12.AttachmentOffset = App.Placement(Vector(0, 0, 25), App.Rotation())
sketch12.addGeometry(Part.Circle(Vector(-2.5, -0.5, 0), Vector(0, 0, 1), 2), False)
sketch12.addConstraint(Sketcher.Constraint("Diameter", 0, 4.0))
sketch12.addConstraint(Sketcher.Constraint("DistanceX", 0, 3, -1, 1, 2.5))
sketch12.addConstraint(Sketcher.Constraint("DistanceY", 0, 3, -1, 1, 0.5))
pocket4 = body.newObject("PartDesign::Pocket", "Pocket003")
pocket4.Profile = sketch12
pocket4.Length = 46
pocket4.Reversed = True
doc.recompute()

fillet = body.newObject("PartDesign::Fillet", "Fillet")
fillet.Base = (pocket4, edges_at(pocket4, [(0, 2, 60)]))
fillet.Radius = 2.4
doc.recompute()

fillet2 = body.newObject("PartDesign::Fillet", "Fillet001")
fillet2.Base = (fillet, edges_at(fillet, [(0, 2, 30)]))
fillet2.Radius = 2.4
doc.recompute()

fillet3 = body.newObject("PartDesign::Fillet", "Fillet002")
fillet3.Base = (fillet2, edges_at(fillet2, [(-5, 2, 30)]))
fillet3.Radius = 2.4
doc.recompute()

fillet4 = body.newObject("PartDesign::Fillet", "Fillet003")
fillet4.Base = (fillet3, edges_at(fillet3, [(-5, 2, 60)]))
fillet4.Radius = 2.4

doc.recompute()
